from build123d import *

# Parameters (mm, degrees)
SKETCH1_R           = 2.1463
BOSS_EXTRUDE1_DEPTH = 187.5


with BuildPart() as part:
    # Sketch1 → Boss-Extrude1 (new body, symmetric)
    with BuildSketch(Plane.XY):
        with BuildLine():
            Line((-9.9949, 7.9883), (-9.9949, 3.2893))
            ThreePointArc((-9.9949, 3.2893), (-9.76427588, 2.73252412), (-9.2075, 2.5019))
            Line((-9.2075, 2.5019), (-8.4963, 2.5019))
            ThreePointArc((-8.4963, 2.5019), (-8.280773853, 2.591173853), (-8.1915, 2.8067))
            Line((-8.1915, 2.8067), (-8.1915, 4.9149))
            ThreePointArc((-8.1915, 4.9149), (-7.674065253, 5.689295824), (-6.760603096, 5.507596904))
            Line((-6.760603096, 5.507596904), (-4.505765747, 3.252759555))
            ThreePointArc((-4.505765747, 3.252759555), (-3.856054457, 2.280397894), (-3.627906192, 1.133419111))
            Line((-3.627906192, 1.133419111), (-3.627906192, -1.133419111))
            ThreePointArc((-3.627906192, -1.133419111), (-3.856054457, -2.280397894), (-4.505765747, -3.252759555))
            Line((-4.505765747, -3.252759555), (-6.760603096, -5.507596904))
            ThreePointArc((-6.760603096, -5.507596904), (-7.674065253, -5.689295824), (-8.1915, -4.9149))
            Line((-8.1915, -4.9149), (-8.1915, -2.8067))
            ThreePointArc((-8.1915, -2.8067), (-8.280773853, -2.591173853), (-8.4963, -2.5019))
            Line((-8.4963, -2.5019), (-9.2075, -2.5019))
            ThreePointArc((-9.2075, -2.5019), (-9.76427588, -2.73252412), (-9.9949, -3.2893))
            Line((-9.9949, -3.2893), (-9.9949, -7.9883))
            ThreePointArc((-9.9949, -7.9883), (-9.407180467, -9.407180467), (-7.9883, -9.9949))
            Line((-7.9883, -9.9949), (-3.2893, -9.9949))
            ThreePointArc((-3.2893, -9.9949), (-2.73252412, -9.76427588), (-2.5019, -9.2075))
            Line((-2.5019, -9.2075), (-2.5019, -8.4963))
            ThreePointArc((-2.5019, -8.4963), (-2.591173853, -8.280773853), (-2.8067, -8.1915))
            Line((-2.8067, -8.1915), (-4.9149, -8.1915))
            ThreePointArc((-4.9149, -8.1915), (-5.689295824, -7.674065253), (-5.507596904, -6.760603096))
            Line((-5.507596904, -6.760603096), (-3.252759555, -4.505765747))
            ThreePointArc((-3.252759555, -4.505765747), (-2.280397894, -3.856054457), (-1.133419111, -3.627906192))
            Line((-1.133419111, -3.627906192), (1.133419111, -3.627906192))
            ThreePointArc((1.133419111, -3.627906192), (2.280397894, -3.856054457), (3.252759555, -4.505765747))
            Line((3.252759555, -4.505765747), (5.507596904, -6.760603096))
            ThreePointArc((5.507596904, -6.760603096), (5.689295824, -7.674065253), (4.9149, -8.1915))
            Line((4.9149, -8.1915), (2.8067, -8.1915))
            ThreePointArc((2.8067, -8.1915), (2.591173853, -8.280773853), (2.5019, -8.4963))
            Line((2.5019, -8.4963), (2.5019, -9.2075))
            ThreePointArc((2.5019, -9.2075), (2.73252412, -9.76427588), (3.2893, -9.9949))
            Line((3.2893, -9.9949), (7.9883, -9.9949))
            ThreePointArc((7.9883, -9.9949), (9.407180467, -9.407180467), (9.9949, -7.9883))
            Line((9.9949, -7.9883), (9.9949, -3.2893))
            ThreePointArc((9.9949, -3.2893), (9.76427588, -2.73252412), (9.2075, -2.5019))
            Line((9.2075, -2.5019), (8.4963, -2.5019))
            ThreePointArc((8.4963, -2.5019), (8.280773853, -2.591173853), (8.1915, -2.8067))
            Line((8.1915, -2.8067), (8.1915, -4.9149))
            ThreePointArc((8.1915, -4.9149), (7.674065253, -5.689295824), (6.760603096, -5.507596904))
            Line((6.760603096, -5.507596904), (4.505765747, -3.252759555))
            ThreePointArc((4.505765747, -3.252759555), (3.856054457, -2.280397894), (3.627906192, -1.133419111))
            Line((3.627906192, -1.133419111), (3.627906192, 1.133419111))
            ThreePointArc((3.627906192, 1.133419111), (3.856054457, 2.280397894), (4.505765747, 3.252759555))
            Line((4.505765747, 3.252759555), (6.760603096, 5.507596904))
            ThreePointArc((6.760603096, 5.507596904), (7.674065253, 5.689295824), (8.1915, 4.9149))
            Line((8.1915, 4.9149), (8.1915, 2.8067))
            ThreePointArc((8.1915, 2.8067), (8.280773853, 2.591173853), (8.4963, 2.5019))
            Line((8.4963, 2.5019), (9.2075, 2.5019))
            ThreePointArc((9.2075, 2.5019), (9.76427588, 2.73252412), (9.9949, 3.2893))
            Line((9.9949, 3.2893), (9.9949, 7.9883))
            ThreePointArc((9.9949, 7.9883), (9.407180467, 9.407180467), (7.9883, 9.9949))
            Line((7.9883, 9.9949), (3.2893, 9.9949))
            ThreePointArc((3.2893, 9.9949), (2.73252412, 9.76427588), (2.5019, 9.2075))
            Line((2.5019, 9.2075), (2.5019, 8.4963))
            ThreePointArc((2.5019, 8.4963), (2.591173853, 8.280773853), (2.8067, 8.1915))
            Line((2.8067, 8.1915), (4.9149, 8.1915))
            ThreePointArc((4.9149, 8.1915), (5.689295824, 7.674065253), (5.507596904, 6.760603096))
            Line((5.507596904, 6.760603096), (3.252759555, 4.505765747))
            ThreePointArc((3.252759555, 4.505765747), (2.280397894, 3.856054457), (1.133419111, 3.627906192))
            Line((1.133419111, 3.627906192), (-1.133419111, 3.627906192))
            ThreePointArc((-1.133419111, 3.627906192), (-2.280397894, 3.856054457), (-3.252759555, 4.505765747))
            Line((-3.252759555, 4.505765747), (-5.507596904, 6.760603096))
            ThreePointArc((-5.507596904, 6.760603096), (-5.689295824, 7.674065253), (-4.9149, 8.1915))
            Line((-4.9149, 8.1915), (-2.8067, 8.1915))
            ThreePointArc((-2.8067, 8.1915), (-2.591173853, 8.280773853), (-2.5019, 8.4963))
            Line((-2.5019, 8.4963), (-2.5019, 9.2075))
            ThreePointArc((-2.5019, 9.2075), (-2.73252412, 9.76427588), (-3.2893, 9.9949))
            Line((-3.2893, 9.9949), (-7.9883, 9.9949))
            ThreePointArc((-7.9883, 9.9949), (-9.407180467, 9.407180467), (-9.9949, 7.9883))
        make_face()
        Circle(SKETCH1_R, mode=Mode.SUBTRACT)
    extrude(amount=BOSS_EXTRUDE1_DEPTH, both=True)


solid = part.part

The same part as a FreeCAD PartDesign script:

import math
import FreeCAD as App
import Part
import Sketcher
from FreeCAD import Vector
Q = App.Units.Quantity

doc = App.newDocument("Part")
body = doc.addObject("PartDesign::Body", "Body")

# Sketch on XY plane
sketch1 = body.newObject("Sketcher::SketchObject", "Sketch")
sketch1.AttachmentSupport = (doc.getObject("XY_Plane"), [""])
sketch1.MapMode = "FlatFace"
sketch1.addGeometry([
    Part.LineSegment(Vector(-9.99, 7.99, 0), Vector(-9.99, 3.29, 0)),  # 0
    Part.ArcOfCircle(Part.Circle(Vector(-9.21, 3.29, 0), Vector(0, 0, 1), 0.79), math.radians(180), math.radians(270)),  # 1
    Part.LineSegment(Vector(-9.21, 2.5, 0), Vector(-8.5, 2.5, 0)),  # 2
    Part.ArcOfCircle(Part.Circle(Vector(-8.5, 2.81, 0), Vector(0, 0, 1), 0.3), math.radians(-90), math.radians(0)),  # 3
    Part.LineSegment(Vector(-8.19, 2.81, 0), Vector(-8.19, 4.91, 0)),  # 4
    Part.ArcOfCircle(Part.Circle(Vector(-7.35, 4.91, 0), Vector(0, 0, 1), 0.84), math.radians(45), math.radians(180)),  # 5
    Part.LineSegment(Vector(-6.76, 5.51, 0), Vector(-4.51, 3.25, 0)),  # 6
    Part.ArcOfCircle(Part.Circle(Vector(-6.63, 1.13, 0), Vector(0, 0, 1), 3), math.radians(0), math.radians(45)),  # 7
    Part.LineSegment(Vector(-3.63, 1.13, 0), Vector(-3.63, -1.13, 0)),  # 8
    Part.ArcOfCircle(Part.Circle(Vector(-6.63, -1.13, 0), Vector(0, 0, 1), 3), math.radians(-45), math.radians(0)),  # 9
    Part.LineSegment(Vector(-4.51, -3.25, 0), Vector(-6.76, -5.51, 0)),  # 10
    Part.ArcOfCircle(Part.Circle(Vector(-7.35, -4.91, 0), Vector(0, 0, 1), 0.84), math.radians(180), math.radians(315)),  # 11
    Part.LineSegment(Vector(-8.19, -4.91, 0), Vector(-8.19, -2.81, 0)),  # 12
    Part.ArcOfCircle(Part.Circle(Vector(-8.5, -2.81, 0), Vector(0, 0, 1), 0.3), math.radians(0), math.radians(90)),  # 13
    Part.LineSegment(Vector(-8.5, -2.5, 0), Vector(-9.21, -2.5, 0)),  # 14
    Part.ArcOfCircle(Part.Circle(Vector(-9.21, -3.29, 0), Vector(0, 0, 1), 0.79), math.radians(90), math.radians(180)),  # 15
    Part.LineSegment(Vector(-9.99, -3.29, 0), Vector(-9.99, -7.99, 0)),  # 16
    Part.ArcOfCircle(Part.Circle(Vector(-7.99, -7.99, 0), Vector(0, 0, 1), 2.01), math.radians(180), math.radians(270)),  # 17
    Part.LineSegment(Vector(-7.99, -9.99, 0), Vector(-3.29, -9.99, 0)),  # 18
    Part.ArcOfCircle(Part.Circle(Vector(-3.29, -9.21, 0), Vector(0, 0, 1), 0.79), math.radians(-90), math.radians(0)),  # 19
    Part.LineSegment(Vector(-2.5, -9.21, 0), Vector(-2.5, -8.5, 0)),  # 20
    Part.ArcOfCircle(Part.Circle(Vector(-2.81, -8.5, 0), Vector(0, 0, 1), 0.3), math.radians(0), math.radians(90)),  # 21
    Part.LineSegment(Vector(-2.81, -8.19, 0), Vector(-4.91, -8.19, 0)),  # 22
    Part.ArcOfCircle(Part.Circle(Vector(-4.91, -7.35, 0), Vector(0, 0, 1), 0.84), math.radians(135), math.radians(270)),  # 23
    Part.LineSegment(Vector(-5.51, -6.76, 0), Vector(-3.25, -4.51, 0)),  # 24
    Part.ArcOfCircle(Part.Circle(Vector(-1.13, -6.63, 0), Vector(0, 0, 1), 3), math.radians(90), math.radians(135)),  # 25
    Part.LineSegment(Vector(-1.13, -3.63, 0), Vector(1.13, -3.63, 0)),  # 26
    Part.ArcOfCircle(Part.Circle(Vector(1.13, -6.63, 0), Vector(0, 0, 1), 3), math.radians(45), math.radians(90)),  # 27
    Part.LineSegment(Vector(3.25, -4.51, 0), Vector(5.51, -6.76, 0)),  # 28
    Part.ArcOfCircle(Part.Circle(Vector(4.91, -7.35, 0), Vector(0, 0, 1), 0.84), math.radians(-90), math.radians(45)),  # 29
    Part.LineSegment(Vector(4.91, -8.19, 0), Vector(2.81, -8.19, 0)),  # 30
    Part.ArcOfCircle(Part.Circle(Vector(2.81, -8.5, 0), Vector(0, 0, 1), 0.3), math.radians(90), math.radians(180)),  # 31
    Part.LineSegment(Vector(2.5, -8.5, 0), Vector(2.5, -9.21, 0)),  # 32
    Part.ArcOfCircle(Part.Circle(Vector(3.29, -9.21, 0), Vector(0, 0, 1), 0.79), math.radians(180), math.radians(270)),  # 33
    Part.LineSegment(Vector(3.29, -9.99, 0), Vector(7.99, -9.99, 0)),  # 34
    Part.ArcOfCircle(Part.Circle(Vector(7.99, -7.99, 0), Vector(0, 0, 1), 2.01), math.radians(-90), math.radians(0)),  # 35
    Part.LineSegment(Vector(9.99, -7.99, 0), Vector(9.99, -3.29, 0)),  # 36
    Part.ArcOfCircle(Part.Circle(Vector(9.21, -3.29, 0), Vector(0, 0, 1), 0.79), math.radians(0), math.radians(90)),  # 37
    Part.LineSegment(Vector(9.21, -2.5, 0), Vector(8.5, -2.5, 0)),  # 38
    Part.ArcOfCircle(Part.Circle(Vector(8.5, -2.81, 0), Vector(0, 0, 1), 0.3), math.radians(90), math.radians(180)),  # 39
    Part.LineSegment(Vector(8.19, -2.81, 0), Vector(8.19, -4.91, 0)),  # 40
    Part.ArcOfCircle(Part.Circle(Vector(7.35, -4.91, 0), Vector(0, 0, 1), 0.84), math.radians(-135), math.radians(0)),  # 41
    Part.LineSegment(Vector(6.76, -5.51, 0), Vector(4.51, -3.25, 0)),  # 42
    Part.ArcOfCircle(Part.Circle(Vector(6.63, -1.13, 0), Vector(0, 0, 1), 3), math.radians(180), math.radians(225)),  # 43
    Part.LineSegment(Vector(3.63, -1.13, 0), Vector(3.63, 1.13, 0)),  # 44
    Part.ArcOfCircle(Part.Circle(Vector(6.63, 1.13, 0), Vector(0, 0, 1), 3), math.radians(135), math.radians(180)),  # 45
    Part.LineSegment(Vector(4.51, 3.25, 0), Vector(6.76, 5.51, 0)),  # 46
    Part.ArcOfCircle(Part.Circle(Vector(7.35, 4.91, 0), Vector(0, 0, 1), 0.84), math.radians(0), math.radians(135)),  # 47
    Part.LineSegment(Vector(8.19, 4.91, 0), Vector(8.19, 2.81, 0)),  # 48
    Part.ArcOfCircle(Part.Circle(Vector(8.5, 2.81, 0), Vector(0, 0, 1), 0.3), math.radians(180), math.radians(270)),  # 49
    Part.LineSegment(Vector(8.5, 2.5, 0), Vector(9.21, 2.5, 0)),  # 50
    Part.ArcOfCircle(Part.Circle(Vector(9.21, 3.29, 0), Vector(0, 0, 1), 0.79), math.radians(-90), math.radians(0)),  # 51
    Part.LineSegment(Vector(9.99, 3.29, 0), Vector(9.99, 7.99, 0)),  # 52
    Part.ArcOfCircle(Part.Circle(Vector(7.99, 7.99, 0), Vector(0, 0, 1), 2.01), math.radians(0), math.radians(90)),  # 53
    Part.LineSegment(Vector(7.99, 9.99, 0), Vector(3.29, 9.99, 0)),  # 54
    Part.ArcOfCircle(Part.Circle(Vector(3.29, 9.21, 0), Vector(0, 0, 1), 0.79), math.radians(90), math.radians(180)),  # 55
    Part.LineSegment(Vector(2.5, 9.21, 0), Vector(2.5, 8.5, 0)),  # 56
    Part.ArcOfCircle(Part.Circle(Vector(2.81, 8.5, 0), Vector(0, 0, 1), 0.3), math.radians(180), math.radians(270)),  # 57
    Part.LineSegment(Vector(2.81, 8.19, 0), Vector(4.91, 8.19, 0)),  # 58
    Part.ArcOfCircle(Part.Circle(Vector(4.91, 7.35, 0), Vector(0, 0, 1), 0.84), math.radians(-45), math.radians(90)),  # 59
    Part.LineSegment(Vector(5.51, 6.76, 0), Vector(3.25, 4.51, 0)),  # 60
    Part.ArcOfCircle(Part.Circle(Vector(1.13, 6.63, 0), Vector(0, 0, 1), 3), math.radians(-90), math.radians(-45)),  # 61
    Part.LineSegment(Vector(1.13, 3.63, 0), Vector(-1.13, 3.63, 0)),  # 62
    Part.ArcOfCircle(Part.Circle(Vector(-1.13, 6.63, 0), Vector(0, 0, 1), 3), math.radians(-135), math.radians(-90)),  # 63
    Part.LineSegment(Vector(-3.25, 4.51, 0), Vector(-5.51, 6.76, 0)),  # 64
    Part.ArcOfCircle(Part.Circle(Vector(-4.91, 7.35, 0), Vector(0, 0, 1), 0.84), math.radians(90), math.radians(225)),  # 65
    Part.LineSegment(Vector(-4.91, 8.19, 0), Vector(-2.81, 8.19, 0)),  # 66
    Part.ArcOfCircle(Part.Circle(Vector(-2.81, 8.5, 0), Vector(0, 0, 1), 0.3), math.radians(-90), math.radians(0)),  # 67
    Part.LineSegment(Vector(-2.5, 8.5, 0), Vector(-2.5, 9.21, 0)),  # 68
    Part.ArcOfCircle(Part.Circle(Vector(-3.29, 9.21, 0), Vector(0, 0, 1), 0.79), math.radians(0), math.radians(90)),  # 69
    Part.LineSegment(Vector(-3.29, 9.99, 0), Vector(-7.99, 9.99, 0)),  # 70
    Part.ArcOfCircle(Part.Circle(Vector(-7.99, 7.99, 0), Vector(0, 0, 1), 2.01), math.radians(90), math.radians(180)),  # 71
    Part.Circle(Vector(0, 0, 0), Vector(0, 0, 1), 2.15),  # 72
], False)
sketch1.addConstraint([
    Sketcher.Constraint("Tangent", 0, 2, 1, 1),
    Sketcher.Constraint("Tangent", 1, 2, 2, 1),
    Sketcher.Constraint("Tangent", 2, 2, 3, 1),
    Sketcher.Constraint("Tangent", 3, 2, 4, 1),
    Sketcher.Constraint("Tangent", 4, 2, 5, 2),
    Sketcher.Constraint("Tangent", 5, 1, 6, 1),
    Sketcher.Constraint("Tangent", 6, 2, 7, 2),
    Sketcher.Constraint("Tangent", 7, 1, 8, 1),
    Sketcher.Constraint("Tangent", 8, 2, 9, 2),
    Sketcher.Constraint("Tangent", 9, 1, 10, 1),
    Sketcher.Constraint("Tangent", 10, 2, 11, 2),
    Sketcher.Constraint("Tangent", 11, 1, 12, 1),
    Sketcher.Constraint("Tangent", 12, 2, 13, 1),
    Sketcher.Constraint("Tangent", 13, 2, 14, 1),
    Sketcher.Constraint("Tangent", 14, 2, 15, 1),
    Sketcher.Constraint("Tangent", 15, 2, 16, 1),
    Sketcher.Constraint("Tangent", 16, 2, 17, 1),
    Sketcher.Constraint("Tangent", 17, 2, 18, 1),
    Sketcher.Constraint("Tangent", 18, 2, 19, 1),
    Sketcher.Constraint("Tangent", 19, 2, 20, 1),
    Sketcher.Constraint("Tangent", 20, 2, 21, 1),
    Sketcher.Constraint("Tangent", 21, 2, 22, 1),
    Sketcher.Constraint("Tangent", 22, 2, 23, 2),
    Sketcher.Constraint("Tangent", 23, 1, 24, 1),
    Sketcher.Constraint("Tangent", 24, 2, 25, 2),
    Sketcher.Constraint("Tangent", 25, 1, 26, 1),
    Sketcher.Constraint("Tangent", 26, 2, 27, 2),
    Sketcher.Constraint("Tangent", 27, 1, 28, 1),
    Sketcher.Constraint("Tangent", 28, 2, 29, 2),
    Sketcher.Constraint("Tangent", 29, 1, 30, 1),
    Sketcher.Constraint("Tangent", 30, 2, 31, 1),
    Sketcher.Constraint("Tangent", 31, 2, 32, 1),
    Sketcher.Constraint("Tangent", 32, 2, 33, 1),
    Sketcher.Constraint("Tangent", 33, 2, 34, 1),
    Sketcher.Constraint("Tangent", 34, 2, 35, 1),
    Sketcher.Constraint("Tangent", 35, 2, 36, 1),
    Sketcher.Constraint("Tangent", 36, 2, 37, 1),
    Sketcher.Constraint("Tangent", 37, 2, 38, 1),
    Sketcher.Constraint("Tangent", 38, 2, 39, 1),
    Sketcher.Constraint("Tangent", 39, 2, 40, 1),
    Sketcher.Constraint("Tangent", 40, 2, 41, 2),
    Sketcher.Constraint("Tangent", 41, 1, 42, 1),
    Sketcher.Constraint("Tangent", 42, 2, 43, 2),
    Sketcher.Constraint("Tangent", 43, 1, 44, 1),
    Sketcher.Constraint("Tangent", 44, 2, 45, 2),
    Sketcher.Constraint("Tangent", 45, 1, 46, 1),
    Sketcher.Constraint("Tangent", 46, 2, 47, 2),
    Sketcher.Constraint("Tangent", 47, 1, 48, 1),
    Sketcher.Constraint("Tangent", 48, 2, 49, 1),
    Sketcher.Constraint("Tangent", 49, 2, 50, 1),
    Sketcher.Constraint("Tangent", 50, 2, 51, 1),
    Sketcher.Constraint("Tangent", 51, 2, 52, 1),
    Sketcher.Constraint("Tangent", 52, 2, 53, 1),
    Sketcher.Constraint("Tangent", 53, 2, 54, 1),
    Sketcher.Constraint("Tangent", 54, 2, 55, 1),
    Sketcher.Constraint("Tangent", 55, 2, 56, 1),
    Sketcher.Constraint("Tangent", 56, 2, 57, 1),
    Sketcher.Constraint("Tangent", 57, 2, 58, 1),
    Sketcher.Constraint("Tangent", 58, 2, 59, 2),
    Sketcher.Constraint("Tangent", 59, 1, 60, 1),
    Sketcher.Constraint("Tangent", 60, 2, 61, 2),
    Sketcher.Constraint("Tangent", 61, 1, 62, 1),
    Sketcher.Constraint("Tangent", 62, 2, 63, 2),
    Sketcher.Constraint("Tangent", 63, 1, 64, 1),
    Sketcher.Constraint("Tangent", 64, 2, 65, 2),
    Sketcher.Constraint("Tangent", 65, 1, 66, 1),
    Sketcher.Constraint("Tangent", 66, 2, 67, 1),
    Sketcher.Constraint("Tangent", 67, 2, 68, 1),
    Sketcher.Constraint("Tangent", 68, 2, 69, 1),
    Sketcher.Constraint("Tangent", 69, 2, 70, 1),
    Sketcher.Constraint("Tangent", 70, 2, 71, 1),
    Sketcher.Constraint("Tangent", 71, 2, 0, 1),
    Sketcher.Constraint("Vertical", 0),
    Sketcher.Constraint("Horizontal", 2),
    Sketcher.Constraint("Vertical", 4),
    Sketcher.Constraint("Vertical", 8),
    Sketcher.Constraint("Vertical", 12),
    Sketcher.Constraint("Horizontal", 14),
    Sketcher.Constraint("Vertical", 16),
    Sketcher.Constraint("Horizontal", 18),
    Sketcher.Constraint("Vertical", 20),
    Sketcher.Constraint("Horizontal", 22),
    Sketcher.Constraint("Horizontal", 26),
    Sketcher.Constraint("Horizontal", 30),
    Sketcher.Constraint("Vertical", 32),
    Sketcher.Constraint("Horizontal", 34),
    Sketcher.Constraint("Vertical", 36),
    Sketcher.Constraint("Horizontal", 38),
    Sketcher.Constraint("Vertical", 40),
    Sketcher.Constraint("Vertical", 44),
    Sketcher.Constraint("Vertical", 48),
    Sketcher.Constraint("Horizontal", 50),
    Sketcher.Constraint("Vertical", 52),
    Sketcher.Constraint("Horizontal", 54),
    Sketcher.Constraint("Vertical", 56),
    Sketcher.Constraint("Horizontal", 58),
    Sketcher.Constraint("Horizontal", 62),
    Sketcher.Constraint("Horizontal", 66),
    Sketcher.Constraint("Vertical", 68),
    Sketcher.Constraint("Horizontal", 70),
    Sketcher.Constraint("Coincident", 72, 3, -1, 1),
    Sketcher.Constraint("Equal", 7, 9),
    Sketcher.Constraint("Equal", 5, 11),
    Sketcher.Constraint("Equal", 3, 13),
    Sketcher.Constraint("Equal", 1, 15),
    Sketcher.Constraint("Equal", 15, 19),
    Sketcher.Constraint("Equal", 13, 21),
    Sketcher.Constraint("Equal", 11, 23),
    Sketcher.Constraint("Equal", 9, 25),
    Sketcher.Constraint("Equal", 25, 27),
    Sketcher.Constraint("Equal", 23, 29),
    Sketcher.Constraint("Equal", 21, 31),
    Sketcher.Constraint("Equal", 19, 33),
    Sketcher.Constraint("Equal", 17, 35),
    Sketcher.Constraint("Equal", 33, 37),
    Sketcher.Constraint("Equal", 31, 39),
    Sketcher.Constraint("Equal", 29, 41),
    Sketcher.Constraint("Equal", 27, 43),
    Sketcher.Constraint("Equal", 43, 45),
    Sketcher.Constraint("Equal", 41, 47),
    Sketcher.Constraint("Equal", 39, 49),
    Sketcher.Constraint("Equal", 37, 51),
    Sketcher.Constraint("Equal", 35, 53),
    Sketcher.Constraint("Equal", 51, 55),
    Sketcher.Constraint("Equal", 49, 57),
    Sketcher.Constraint("Equal", 47, 59),
    Sketcher.Constraint("Equal", 45, 61),
    Sketcher.Constraint("Equal", 61, 63),
    Sketcher.Constraint("Equal", 59, 65),
    Sketcher.Constraint("Equal", 57, 67),
    Sketcher.Constraint("Equal", 55, 69),
    Sketcher.Constraint("Equal", 53, 71),
    Sketcher.Constraint("Symmetric", 1, 3, 37, 3, -1, 1),
    Sketcher.Constraint("Symmetric", 5, 3, 41, 3, -1, 1),
    Sketcher.Constraint("Symmetric", 7, 3, 43, 3, -1, 1),
    Sketcher.Constraint("Symmetric", 11, 3, 47, 3, -1, 1),
    Sketcher.Constraint("Symmetric", 15, 3, 51, 3, -1, 1),
    Sketcher.Constraint("Symmetric", 19, 3, 55, 3, -1, 1),
    Sketcher.Constraint("Symmetric", 23, 3, 59, 3, -1, 1),
    Sketcher.Constraint("Symmetric", 25, 3, 61, 3, -1, 1),
    Sketcher.Constraint("Symmetric", 29, 3, 65, 3, -1, 1),
    Sketcher.Constraint("Symmetric", 33, 3, 69, 3, -1, 1),
    Sketcher.Constraint("Symmetric", 23, 3, 29, 3, -2),
    Sketcher.Constraint("Symmetric", 19, 3, 33, 3, -2),
    Sketcher.Constraint("Symmetric", 15, 3, 37, 3, -2),
    Sketcher.Constraint("Symmetric", 11, 3, 41, 3, -2),
    Sketcher.Constraint("Perpendicular", 6, 10),
    Sketcher.Constraint("Parallel", 10, 24),
    Sketcher.Constraint("Perpendicular", 24, 28),
    Sketcher.Constraint("Perpendicular", 42, 46),
    Sketcher.Constraint("Perpendicular", 60, 64),
    Sketcher.Constraint("Horizontal", 9, 3, 43, 3),
    Sketcher.Constraint("Equal", 70, 0),
    Sketcher.Constraint("Equal", 66, 4),
    Sketcher.Constraint("Equal", 62, 8),
    Sketcher.Constraint("Equal", 50, 20),
    Sketcher.Constraint("Equal", 10, 24),
    Sketcher.Constraint("Diameter", 72, Q("0.169 in")),
    Sketcher.Constraint("Radius", 1, Q("0.031 in")),
    Sketcher.Constraint("Radius", 3, Q("0.012 in")),
    Sketcher.Constraint("Radius", 5, Q("0.033 in")),
    Sketcher.Constraint("Radius", 7, Q("0.118 in")),
    Sketcher.Constraint("Radius", 17, Q("0.079 in")),
    Sketcher.Constraint("DistanceX", 2, 1, 2, 2, Q("0.028 in")),
    Sketcher.Constraint("DistanceX", 18, 1, 18, 2, Q("0.185 in")),
    Sketcher.Constraint("DistanceX", 22, 2, 22, 1, Q("0.083 in")),
    Sketcher.Constraint("DistanceX", 1, 3, -1, 1, Q("0.3625 in")),
    Sketcher.Constraint("DistanceX", 26, 1, 26, 2, Q("2.266838 mm")),
])
pad1 = body.newObject("PartDesign::Pad", "Pad")
pad1.Profile = sketch1
pad1.Length = 375
pad1.Midplane = True

doc.recompute()
